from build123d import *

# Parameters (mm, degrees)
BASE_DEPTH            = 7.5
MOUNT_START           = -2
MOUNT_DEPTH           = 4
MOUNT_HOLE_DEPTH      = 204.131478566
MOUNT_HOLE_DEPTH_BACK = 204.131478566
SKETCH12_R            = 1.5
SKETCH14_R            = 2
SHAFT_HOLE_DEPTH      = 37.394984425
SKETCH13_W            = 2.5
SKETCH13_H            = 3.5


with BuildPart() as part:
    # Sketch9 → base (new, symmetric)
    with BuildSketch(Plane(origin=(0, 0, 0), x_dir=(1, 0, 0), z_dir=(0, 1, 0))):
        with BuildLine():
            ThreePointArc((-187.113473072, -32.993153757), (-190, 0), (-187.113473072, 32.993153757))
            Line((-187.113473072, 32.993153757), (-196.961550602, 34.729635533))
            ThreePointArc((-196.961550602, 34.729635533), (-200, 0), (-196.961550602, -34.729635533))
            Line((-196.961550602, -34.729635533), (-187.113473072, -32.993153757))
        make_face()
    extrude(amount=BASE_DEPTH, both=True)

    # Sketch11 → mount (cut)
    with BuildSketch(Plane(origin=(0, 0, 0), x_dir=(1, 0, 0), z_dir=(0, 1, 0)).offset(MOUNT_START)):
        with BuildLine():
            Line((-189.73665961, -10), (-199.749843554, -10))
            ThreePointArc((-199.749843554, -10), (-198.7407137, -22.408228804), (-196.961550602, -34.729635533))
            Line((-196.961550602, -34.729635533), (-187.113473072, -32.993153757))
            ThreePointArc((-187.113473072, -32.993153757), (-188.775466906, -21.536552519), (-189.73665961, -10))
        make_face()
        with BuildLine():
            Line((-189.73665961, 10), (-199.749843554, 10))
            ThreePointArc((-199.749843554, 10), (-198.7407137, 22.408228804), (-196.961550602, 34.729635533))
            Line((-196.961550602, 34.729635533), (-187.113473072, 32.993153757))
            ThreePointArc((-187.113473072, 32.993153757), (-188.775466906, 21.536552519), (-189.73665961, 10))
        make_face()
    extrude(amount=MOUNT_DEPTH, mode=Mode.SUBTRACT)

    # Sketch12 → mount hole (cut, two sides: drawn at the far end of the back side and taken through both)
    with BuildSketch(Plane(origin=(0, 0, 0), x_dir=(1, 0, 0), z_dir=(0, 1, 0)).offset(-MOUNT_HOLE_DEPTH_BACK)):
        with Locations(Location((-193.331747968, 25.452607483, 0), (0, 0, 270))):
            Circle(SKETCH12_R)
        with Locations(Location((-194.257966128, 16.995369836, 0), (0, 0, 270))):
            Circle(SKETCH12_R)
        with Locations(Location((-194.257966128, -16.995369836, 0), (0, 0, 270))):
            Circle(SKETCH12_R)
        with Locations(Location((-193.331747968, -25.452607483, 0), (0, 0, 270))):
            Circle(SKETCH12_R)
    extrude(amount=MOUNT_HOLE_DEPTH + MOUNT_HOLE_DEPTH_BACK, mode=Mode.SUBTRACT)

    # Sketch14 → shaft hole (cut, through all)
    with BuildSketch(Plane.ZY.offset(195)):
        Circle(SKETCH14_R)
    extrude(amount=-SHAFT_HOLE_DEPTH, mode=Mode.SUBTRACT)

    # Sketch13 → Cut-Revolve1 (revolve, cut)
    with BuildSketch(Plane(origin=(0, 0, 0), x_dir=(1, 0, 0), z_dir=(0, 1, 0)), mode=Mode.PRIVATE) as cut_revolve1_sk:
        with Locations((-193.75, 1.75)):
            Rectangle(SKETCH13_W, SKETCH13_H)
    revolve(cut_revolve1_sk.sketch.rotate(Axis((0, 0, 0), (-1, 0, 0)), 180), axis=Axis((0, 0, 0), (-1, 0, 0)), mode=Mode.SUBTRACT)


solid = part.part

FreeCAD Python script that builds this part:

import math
import FreeCAD as App
import Part
import Sketcher
Q = App.Units.Quantity

doc = App.newDocument("Part")
params = doc.addObject("Spreadsheet::Sheet", "Params")
for row, (alias, value) in enumerate([
    ("sketch1_radius", "190 mm"),
    ("sketch1_radius2", "200 mm"),
    ("pad1_length", "15 mm"),
    ("sketch2_radius", "200 mm"),
    ("sketch2_radius2", "190 mm"),
    ("pocket1_length", "4 mm"),
    ("sketch3_diameter", "3 mm"),
    ("sketch4_diameter", "4 mm"),
    ("sketch5_width", "2.5 mm"),
    ("sketch5_height", "3.5 mm"),
    ("groove_angle", "360 deg"),
], start=1):
    params.set(f"A{row}", alias)
    params.set(f"B{row}", "=" + value)
    params.setAlias(f"B{row}", alias)

body = doc.addObject("PartDesign::Body", "Body")

# Sketch on XZ plane
sketch1 = body.newObject("Sketcher::SketchObject", "Sketch")
sketch1.AttachmentSupport = (doc.getObject("XZ_Plane"), [""])
sketch1.MapMode = "FlatFace"
sketch1.addGeometry([
    Part.ArcOfCircle(Part.Circle(App.Vector(0, 0, 0), App.Vector(0, 0, 1), 190), math.radians(170), math.radians(190)),
    Part.LineSegment(App.Vector(-187.113473, -32.993154, 0), App.Vector(-196.961551, -34.729636, 0)),
    Part.ArcOfCircle(Part.Circle(App.Vector(0, 0, 0), App.Vector(0, 0, 1), 200), math.radians(170), math.radians(190)),
    Part.LineSegment(App.Vector(-196.961551, 34.729636, 0), App.Vector(-187.113473, 32.993154, 0)),
], False)
sketch1.addConstraint([
    Sketcher.Constraint("Coincident", 0, 2, 1, 1),
    Sketcher.Constraint("Coincident", 1, 2, 2, 2),
    Sketcher.Constraint("Coincident", 2, 1, 3, 1),
    Sketcher.Constraint("Coincident", 3, 2, 0, 1),
    Sketcher.Constraint("Coincident", 0, 3, -1, 1),
    Sketcher.Constraint("Coincident", 2, 3, -1, 1),
    Sketcher.Constraint("Vertical", 1, 2, 2, 1),
    Sketcher.Constraint("Vertical", 0, 2, 3, 2),
    Sketcher.Constraint("Radius", 0, Q("190 mm")),
    Sketcher.Constraint("Radius", 2, Q("200 mm")),
    Sketcher.Constraint("Angle", 1, Q("-170 deg")),
    Sketcher.Constraint("DistanceX", 1, 2, -1, 1, Q("196.961551 mm")),
])
sketch1.setExpression("Constraints[8]", "Params.sketch1_radius")
sketch1.setExpression("Constraints[9]", "Params.sketch1_radius2")
pad1 = body.newObject("PartDesign::Pad", "Pad")
pad1.Profile = sketch1
pad1.setExpression("Length", "Params.pad1_length")
pad1.Midplane = True

# Sketch on XZ plane
sketch2 = body.newObject("Sketcher::SketchObject", "Sketch001")
sketch2.AttachmentSupport = (doc.getObject("XZ_Plane"), [""])
sketch2.MapMode = "FlatFace"
sketch2.AttachmentOffset = App.Placement(App.Vector(0, 0, 2), App.Rotation())
sketch2.addGeometry([
    Part.LineSegment(App.Vector(-189.73666, 10, 0), App.Vector(-199.749844, 10, 0)),  # 0
    Part.ArcOfCircle(Part.Circle(App.Vector(0, 0, 0), App.Vector(0, 0, 1), 200), math.radians(170), math.radians(177.134016)),  # 1
    Part.LineSegment(App.Vector(-196.961551, 34.729636, 0), App.Vector(-187.113473, 32.993154, 0)),  # 2
    Part.ArcOfCircle(Part.Circle(App.Vector(0, 0, 0), App.Vector(0, 0, 1), 190), math.radians(170), math.radians(176.983039)),  # 3
    Part.LineSegment(App.Vector(-199.749844, -10, 0), App.Vector(-189.73666, -10, 0)),  # 4
    Part.ArcOfCircle(Part.Circle(App.Vector(0, 0, 0), App.Vector(0, 0, 1), 190), math.radians(-176.983039), math.radians(-170)),  # 5
    Part.LineSegment(App.Vector(-187.113473, -32.993154, 0), App.Vector(-196.961551, -34.729636, 0)),  # 6
    Part.ArcOfCircle(Part.Circle(App.Vector(0, 0, 0), App.Vector(0, 0, 1), 200), math.radians(-177.134016), math.radians(-170)),  # 7
], False)
sketch2.addConstraint([
    Sketcher.Constraint("Coincident", 0, 2, 1, 2),
    Sketcher.Constraint("Coincident", 1, 1, 2, 1),
    Sketcher.Constraint("Coincident", 2, 2, 3, 1),
    Sketcher.Constraint("Coincident", 3, 2, 0, 1),
    Sketcher.Constraint("Coincident", 4, 2, 5, 1),
    Sketcher.Constraint("Coincident", 5, 2, 6, 1),
    Sketcher.Constraint("Coincident", 6, 2, 7, 2),
    Sketcher.Constraint("Coincident", 7, 1, 4, 1),
    Sketcher.Constraint("Horizontal", 0),
    Sketcher.Constraint("Horizontal", 4),
    Sketcher.Constraint("Coincident", 1, 3, -1, 1),
    Sketcher.Constraint("Coincident", 3, 3, -1, 1),
    Sketcher.Constraint("Coincident", 5, 3, -1, 1),
    Sketcher.Constraint("Coincident", 7, 3, -1, 1),
    Sketcher.Constraint("Equal", 3, 5),
    Sketcher.Constraint("Equal", 1, 7),
    Sketcher.Constraint("Vertical", 3, 2, 4, 2),
    Sketcher.Constraint("Vertical", 2, 2, 5, 2),
    Sketcher.Constraint("Vertical", 1, 1, 6, 2),
    Sketcher.Constraint("Radius", 1, Q("200 mm")),
    Sketcher.Constraint("Radius", 3, Q("190 mm")),
    Sketcher.Constraint("Angle", 2, Q("-10 deg")),
    Sketcher.Constraint("DistanceY", -1, 1, 0, 2, Q("10 mm")),
    Sketcher.Constraint("DistanceX", 1, 1, -1, 1, Q("196.961551 mm")),
])
sketch2.setExpression("Constraints[19]", "Params.sketch2_radius")
sketch2.setExpression("Constraints[20]", "Params.sketch2_radius2")
pocket1 = body.newObject("PartDesign::Pocket", "Pocket")
pocket1.Profile = sketch2
pocket1.setExpression("Length", "Params.pocket1_length")

# Sketch on XZ plane
sketch3 = body.newObject("Sketcher::SketchObject", "Sketch002")
sketch3.AttachmentSupport = (doc.getObject("XZ_Plane"), [""])
sketch3.MapMode = "FlatFace"
sketch3.addGeometry([
    Part.Circle(App.Vector(-193.331748, -25.452607, 0), App.Vector(0, 0, 1), 1.5),
    Part.Circle(App.Vector(-194.257966, -16.99537, 0), App.Vector(0, 0, 1), 1.5),
    Part.Circle(App.Vector(-194.257966, 16.99537, 0), App.Vector(0, 0, 1), 1.5),
    Part.Circle(App.Vector(-193.331748, 25.452607, 0), App.Vector(0, 0, 1), 1.5),
], False)
sketch3.addConstraint([
    Sketcher.Constraint("Equal", 0, 1),
    Sketcher.Constraint("Equal", 1, 2),
    Sketcher.Constraint("Equal", 2, 3),
    Sketcher.Constraint("Symmetric", 1, 3, 2, 3, -1),
    Sketcher.Constraint("Symmetric", 0, 3, 3, 3, -1),
    Sketcher.Constraint("Diameter", 0, Q("3 mm")),
    Sketcher.Constraint("DistanceY", 1, 3, -1, 1, Q("16.99537 mm")),
    Sketcher.Constraint("DistanceX", 1, 3, 0, 3, Q("0.926218 mm")),
    Sketcher.Constraint("DistanceX", 0, 3, -1, 1, Q("193.331748 mm")),
    Sketcher.Constraint("DistanceY", 0, 3, -1, 1, Q("25.452607 mm")),
])
sketch3.setExpression("Constraints[5]", "Params.sketch3_diameter")
pocket2 = body.newObject("PartDesign::Pocket", "Pocket001")
pocket2.Profile = sketch3
pocket2.Type = "ThroughAll"
pocket2.Midplane = True

# Sketch on YZ plane
sketch4 = body.newObject("Sketcher::SketchObject", "Sketch003")
sketch4.AttachmentSupport = (doc.getObject("YZ_Plane"), [""])
sketch4.MapMode = "FlatFace"
sketch4.AttachmentOffset = App.Placement(App.Vector(0, 0, -195), App.Rotation())
sketch4.addGeometry(Part.Circle(App.Vector(0, 0, 0), App.Vector(0, 0, 1), 2), False)
sketch4.addConstraint([
    Sketcher.Constraint("Coincident", 0, 3, -1, 1),
    Sketcher.Constraint("Diameter", 0, Q("4 mm")),
])
sketch4.setExpression("Constraints[1]", "Params.sketch4_diameter")
pocket3 = body.newObject("PartDesign::Pocket", "Pocket002")
pocket3.Profile = sketch4
pocket3.Type = "ThroughAll"
pocket3.Reversed = True

# Sketch on XZ plane
sketch5 = body.newObject("Sketcher::SketchObject", "Sketch004")
sketch5.AttachmentSupport = (doc.getObject("XZ_Plane"), [""])
sketch5.MapMode = "FlatFace"
sketch5.addGeometry([
    Part.LineSegment(App.Vector(-195, -3.5, 0), App.Vector(-195, 0, 0)),
    Part.LineSegment(App.Vector(-195, 0, 0), App.Vector(-192.5, 0, 0)),
    Part.LineSegment(App.Vector(-192.5, 0, 0), App.Vector(-192.5, -3.5, 0)),
    Part.LineSegment(App.Vector(-192.5, -3.5, 0), App.Vector(-195, -3.5, 0)),
], False)
sketch5.addConstraint([
    Sketcher.Constraint("Coincident", 0, 2, 1, 1),
    Sketcher.Constraint("Coincident", 1, 2, 2, 1),
    Sketcher.Constraint("Coincident", 2, 2, 3, 1),
    Sketcher.Constraint("Coincident", 3, 2, 0, 1),
    Sketcher.Constraint("Vertical", 0),
    Sketcher.Constraint("Horizontal", 1),
    Sketcher.Constraint("Vertical", 2),
    Sketcher.Constraint("Horizontal", 3),
    Sketcher.Constraint("PointOnObject", 0, 2, -1),
    Sketcher.Constraint("DistanceX", 1, 1, 1, 2, Q("2.5 mm")),
    Sketcher.Constraint("DistanceY", 0, 1, 0, 2, Q("3.5 mm")),
    Sketcher.Constraint("DistanceX", 0, 2, -1, 1, Q("195 mm")),
])
sketch5.setExpression("Constraints[9]", "Params.sketch5_width")
sketch5.setExpression("Constraints[10]", "Params.sketch5_height")
groove = body.newObject("PartDesign::Groove", "Groove")
groove.Profile = sketch5
groove.ReferenceAxis = (sketch5, ["H_Axis"])
groove.setExpression("Angle", "Params.groove_angle")

doc.recompute()
